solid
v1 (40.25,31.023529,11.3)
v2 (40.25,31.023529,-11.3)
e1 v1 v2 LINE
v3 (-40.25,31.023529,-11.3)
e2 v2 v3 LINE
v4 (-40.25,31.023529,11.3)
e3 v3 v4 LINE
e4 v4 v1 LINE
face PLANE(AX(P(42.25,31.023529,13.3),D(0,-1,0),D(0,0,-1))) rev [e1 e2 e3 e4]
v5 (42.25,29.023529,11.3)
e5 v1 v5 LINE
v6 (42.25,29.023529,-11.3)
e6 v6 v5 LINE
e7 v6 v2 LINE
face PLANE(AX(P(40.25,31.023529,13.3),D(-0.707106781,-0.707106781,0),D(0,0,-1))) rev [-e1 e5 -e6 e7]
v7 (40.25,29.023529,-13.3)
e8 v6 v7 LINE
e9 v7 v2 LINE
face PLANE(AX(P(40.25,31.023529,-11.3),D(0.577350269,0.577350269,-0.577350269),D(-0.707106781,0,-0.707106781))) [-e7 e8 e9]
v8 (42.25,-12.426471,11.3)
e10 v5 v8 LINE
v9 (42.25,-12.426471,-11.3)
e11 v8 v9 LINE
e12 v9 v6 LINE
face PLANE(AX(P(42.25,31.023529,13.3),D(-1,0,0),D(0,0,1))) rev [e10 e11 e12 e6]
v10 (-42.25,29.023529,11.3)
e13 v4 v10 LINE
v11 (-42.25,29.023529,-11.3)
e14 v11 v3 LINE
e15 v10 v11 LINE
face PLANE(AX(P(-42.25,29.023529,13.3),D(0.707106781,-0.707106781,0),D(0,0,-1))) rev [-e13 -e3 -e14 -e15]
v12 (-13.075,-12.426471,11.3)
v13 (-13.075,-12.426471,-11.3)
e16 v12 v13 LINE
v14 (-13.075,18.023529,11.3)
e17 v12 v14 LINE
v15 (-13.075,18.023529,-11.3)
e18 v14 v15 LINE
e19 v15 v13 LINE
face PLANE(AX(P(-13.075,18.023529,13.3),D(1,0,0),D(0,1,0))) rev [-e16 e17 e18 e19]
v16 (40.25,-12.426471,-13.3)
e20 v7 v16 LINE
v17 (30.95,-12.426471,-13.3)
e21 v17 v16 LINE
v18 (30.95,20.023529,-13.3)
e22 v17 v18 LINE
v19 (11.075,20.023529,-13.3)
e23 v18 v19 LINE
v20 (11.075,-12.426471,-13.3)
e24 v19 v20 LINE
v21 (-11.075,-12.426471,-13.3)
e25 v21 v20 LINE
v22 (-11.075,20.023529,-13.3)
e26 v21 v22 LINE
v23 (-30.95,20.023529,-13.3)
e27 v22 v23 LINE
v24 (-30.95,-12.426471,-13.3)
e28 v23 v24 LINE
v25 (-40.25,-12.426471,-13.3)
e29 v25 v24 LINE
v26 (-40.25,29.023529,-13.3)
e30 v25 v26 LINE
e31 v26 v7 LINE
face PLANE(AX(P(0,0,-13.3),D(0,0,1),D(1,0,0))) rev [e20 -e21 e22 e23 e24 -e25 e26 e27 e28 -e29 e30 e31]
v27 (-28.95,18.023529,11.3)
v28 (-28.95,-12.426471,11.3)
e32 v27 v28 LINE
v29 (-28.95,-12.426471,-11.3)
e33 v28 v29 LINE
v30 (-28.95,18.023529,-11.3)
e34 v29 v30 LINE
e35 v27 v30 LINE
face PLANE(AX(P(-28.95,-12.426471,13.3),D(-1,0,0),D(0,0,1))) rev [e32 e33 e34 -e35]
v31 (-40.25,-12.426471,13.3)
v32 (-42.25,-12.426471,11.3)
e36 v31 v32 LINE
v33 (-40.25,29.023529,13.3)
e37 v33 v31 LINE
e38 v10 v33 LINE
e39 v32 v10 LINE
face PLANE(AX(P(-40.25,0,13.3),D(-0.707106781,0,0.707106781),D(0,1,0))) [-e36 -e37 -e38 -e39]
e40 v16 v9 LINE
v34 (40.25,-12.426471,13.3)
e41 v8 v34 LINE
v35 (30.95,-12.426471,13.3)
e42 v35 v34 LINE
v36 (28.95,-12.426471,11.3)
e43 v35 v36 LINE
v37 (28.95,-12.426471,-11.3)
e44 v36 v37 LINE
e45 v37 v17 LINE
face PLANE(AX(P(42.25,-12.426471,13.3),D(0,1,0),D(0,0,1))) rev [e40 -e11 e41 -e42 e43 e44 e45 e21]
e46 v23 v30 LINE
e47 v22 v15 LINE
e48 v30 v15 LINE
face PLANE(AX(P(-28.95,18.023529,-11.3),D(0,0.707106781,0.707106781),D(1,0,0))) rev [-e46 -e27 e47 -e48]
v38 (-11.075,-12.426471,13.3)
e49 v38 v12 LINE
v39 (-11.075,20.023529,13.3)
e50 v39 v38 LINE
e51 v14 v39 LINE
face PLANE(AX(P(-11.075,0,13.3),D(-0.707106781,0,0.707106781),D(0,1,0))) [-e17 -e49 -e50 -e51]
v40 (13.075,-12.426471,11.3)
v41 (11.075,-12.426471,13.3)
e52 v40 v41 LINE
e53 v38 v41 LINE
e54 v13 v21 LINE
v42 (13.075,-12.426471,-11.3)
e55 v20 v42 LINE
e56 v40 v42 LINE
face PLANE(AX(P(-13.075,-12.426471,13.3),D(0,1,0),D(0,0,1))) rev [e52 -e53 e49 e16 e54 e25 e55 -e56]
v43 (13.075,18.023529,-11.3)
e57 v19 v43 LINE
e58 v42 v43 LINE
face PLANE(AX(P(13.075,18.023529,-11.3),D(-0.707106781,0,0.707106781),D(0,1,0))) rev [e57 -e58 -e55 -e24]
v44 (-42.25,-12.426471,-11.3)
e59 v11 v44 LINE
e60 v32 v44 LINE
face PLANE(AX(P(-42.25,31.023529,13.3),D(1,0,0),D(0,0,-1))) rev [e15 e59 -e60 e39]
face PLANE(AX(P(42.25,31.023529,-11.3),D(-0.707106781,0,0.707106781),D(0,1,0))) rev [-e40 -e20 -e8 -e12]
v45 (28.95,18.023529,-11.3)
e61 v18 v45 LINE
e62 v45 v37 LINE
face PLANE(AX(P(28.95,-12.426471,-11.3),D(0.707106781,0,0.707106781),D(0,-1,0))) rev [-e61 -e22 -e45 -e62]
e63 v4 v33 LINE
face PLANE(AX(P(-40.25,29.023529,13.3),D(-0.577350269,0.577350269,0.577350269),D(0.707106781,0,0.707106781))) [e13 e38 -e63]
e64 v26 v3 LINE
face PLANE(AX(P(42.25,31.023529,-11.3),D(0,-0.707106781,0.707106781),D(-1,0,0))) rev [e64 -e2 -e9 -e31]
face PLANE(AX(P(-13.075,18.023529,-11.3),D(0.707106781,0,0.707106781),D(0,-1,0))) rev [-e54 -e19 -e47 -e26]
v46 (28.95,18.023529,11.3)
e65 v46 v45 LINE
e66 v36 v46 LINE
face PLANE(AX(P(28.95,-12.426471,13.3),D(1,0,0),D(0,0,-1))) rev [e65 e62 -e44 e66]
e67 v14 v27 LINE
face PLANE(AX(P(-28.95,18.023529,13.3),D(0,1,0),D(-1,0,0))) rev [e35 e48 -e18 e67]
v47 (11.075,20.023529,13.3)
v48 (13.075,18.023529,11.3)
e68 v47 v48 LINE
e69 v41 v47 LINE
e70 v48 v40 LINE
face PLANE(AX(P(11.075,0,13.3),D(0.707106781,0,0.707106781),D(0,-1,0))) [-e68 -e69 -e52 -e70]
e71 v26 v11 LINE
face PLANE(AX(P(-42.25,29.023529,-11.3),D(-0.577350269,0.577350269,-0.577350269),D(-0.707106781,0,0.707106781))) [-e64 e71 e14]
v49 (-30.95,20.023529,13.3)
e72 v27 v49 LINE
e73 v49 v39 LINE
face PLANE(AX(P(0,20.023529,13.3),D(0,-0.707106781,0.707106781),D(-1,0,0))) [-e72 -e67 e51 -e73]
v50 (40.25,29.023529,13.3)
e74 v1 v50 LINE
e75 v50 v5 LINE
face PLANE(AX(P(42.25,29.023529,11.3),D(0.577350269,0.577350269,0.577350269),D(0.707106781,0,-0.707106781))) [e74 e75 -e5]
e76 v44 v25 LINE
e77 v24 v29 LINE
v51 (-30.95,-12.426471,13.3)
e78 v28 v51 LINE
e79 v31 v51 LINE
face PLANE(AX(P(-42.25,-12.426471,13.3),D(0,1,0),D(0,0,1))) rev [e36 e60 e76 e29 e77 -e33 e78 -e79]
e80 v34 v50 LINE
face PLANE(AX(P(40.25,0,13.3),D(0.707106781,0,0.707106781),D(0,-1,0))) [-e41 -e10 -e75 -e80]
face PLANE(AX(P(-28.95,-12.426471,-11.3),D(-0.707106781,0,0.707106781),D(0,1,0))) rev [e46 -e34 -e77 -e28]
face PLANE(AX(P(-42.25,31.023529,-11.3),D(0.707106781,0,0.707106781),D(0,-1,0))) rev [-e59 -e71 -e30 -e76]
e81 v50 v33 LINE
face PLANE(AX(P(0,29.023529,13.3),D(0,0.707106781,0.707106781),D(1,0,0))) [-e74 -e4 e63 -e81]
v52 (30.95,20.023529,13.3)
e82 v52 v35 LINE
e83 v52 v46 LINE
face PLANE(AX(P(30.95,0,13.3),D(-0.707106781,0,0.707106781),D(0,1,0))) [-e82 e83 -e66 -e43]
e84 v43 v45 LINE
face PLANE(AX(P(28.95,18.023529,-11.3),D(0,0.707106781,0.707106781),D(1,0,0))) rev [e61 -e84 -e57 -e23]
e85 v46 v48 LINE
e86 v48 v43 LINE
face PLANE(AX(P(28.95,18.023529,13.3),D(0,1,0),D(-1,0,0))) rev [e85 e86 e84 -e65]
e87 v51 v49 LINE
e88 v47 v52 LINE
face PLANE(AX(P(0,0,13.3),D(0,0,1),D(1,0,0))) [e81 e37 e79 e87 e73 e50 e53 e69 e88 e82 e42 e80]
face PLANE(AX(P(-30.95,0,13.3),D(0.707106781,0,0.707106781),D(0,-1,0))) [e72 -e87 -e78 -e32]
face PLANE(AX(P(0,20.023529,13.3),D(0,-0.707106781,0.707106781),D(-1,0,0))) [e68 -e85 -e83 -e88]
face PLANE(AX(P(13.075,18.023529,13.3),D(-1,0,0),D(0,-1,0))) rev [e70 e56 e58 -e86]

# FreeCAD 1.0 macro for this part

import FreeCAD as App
import Part
import Sketcher
from FreeCAD import Vector
Q = App.Units.Quantity


def edges_at(feature, points):
    """Names of the edges that pass closest to the given points."""
    edges = feature.Shape.Edges
    near = lambda p: min(range(len(edges)), key=lambda i: edges[i].distToShape(Part.Vertex(*p))[0])
    return sorted({f"Edge{near(p) + 1}" for p in points})

doc = App.newDocument("Part")
body = doc.addObject("PartDesign::Body", "Body")

# Sketch on XY plane
sketch1 = body.newObject("Sketcher::SketchObject", "Sketch")
sketch1.AttachmentSupport = (doc.getObject("XY_Plane"), [""])
sketch1.MapMode = "FlatFace"
sketch1.addGeometry([
    Part.LineSegment(Vector(42, 31, 0), Vector(-42, 31, 0)),  # 0
    Part.LineSegment(Vector(-42, 31, 0), Vector(-42, -12, 0)),  # 1
    Part.LineSegment(Vector(-42, -12, 0), Vector(-29, -12, 0)),  # 2
    Part.LineSegment(Vector(-29, -12, 0), Vector(-29, 18, 0)),  # 3
    Part.LineSegment(Vector(-29, 18, 0), Vector(-13, 18, 0)),  # 4
    Part.LineSegment(Vector(-13, 18, 0), Vector(-13, -12, 0)),  # 5
    Part.LineSegment(Vector(-13, -12, 0), Vector(13, -12, 0)),  # 6
    Part.LineSegment(Vector(13, -12, 0), Vector(13, 18, 0)),  # 7
    Part.LineSegment(Vector(13, 18, 0), Vector(29, 18, 0)),  # 8
    Part.LineSegment(Vector(29, 18, 0), Vector(29, -12, 0)),  # 9
    Part.LineSegment(Vector(29, -12, 0), Vector(42, -12, 0)),  # 10
    Part.LineSegment(Vector(42, -12, 0), Vector(42, 31, 0)),  # 11
], False)
sketch1.addConstraint([
    Sketcher.Constraint("Coincident", 0, 2, 1, 1),
    Sketcher.Constraint("Coincident", 1, 2, 2, 1),
    Sketcher.Constraint("Coincident", 2, 2, 3, 1),
    Sketcher.Constraint("Coincident", 3, 2, 4, 1),
    Sketcher.Constraint("Coincident", 4, 2, 5, 1),
    Sketcher.Constraint("Coincident", 5, 2, 6, 1),
    Sketcher.Constraint("Coincident", 6, 2, 7, 1),
    Sketcher.Constraint("Coincident", 7, 2, 8, 1),
    Sketcher.Constraint("Coincident", 8, 2, 9, 1),
    Sketcher.Constraint("Coincident", 9, 2, 10, 1),
    Sketcher.Constraint("Coincident", 10, 2, 11, 1),
    Sketcher.Constraint("Coincident", 11, 2, 0, 1),
    Sketcher.Constraint("Horizontal", 0),
    Sketcher.Constraint("Vertical", 1),
    Sketcher.Constraint("Horizontal", 2),
    Sketcher.Constraint("Vertical", 3),
    Sketcher.Constraint("Horizontal", 4),
    Sketcher.Constraint("Vertical", 5),
    Sketcher.Constraint("Horizontal", 6),
    Sketcher.Constraint("Vertical", 7),
    Sketcher.Constraint("Horizontal", 8),
    Sketcher.Constraint("Vertical", 9),
    Sketcher.Constraint("Horizontal", 10),
    Sketcher.Constraint("Vertical", 11),
    Sketcher.Constraint("Symmetric", 4, 2, 7, 2, -2),
    Sketcher.Constraint("Symmetric", 2, 2, 9, 2, -2),
    Sketcher.Constraint("Horizontal", 2, 2, 5, 2),
    Sketcher.Constraint("Equal", 2, 10),
    Sketcher.Constraint("DistanceX", 0, 2, 0, 1, Q("84.5 mm")),
    Sketcher.Constraint("DistanceX", 2, 1, 2, 2, Q("13.3 mm")),
    Sketcher.Constraint("DistanceY", 3, 2, 0, 2, Q("13 mm")),
    Sketcher.Constraint("DistanceX", 6, 1, 6, 2, Q("26.15 mm")),
    Sketcher.Constraint("DistanceY", 1, 2, 1, 1, Q("43.45 mm")),
    Sketcher.Constraint("DistanceY", -1, 1, 0, 2, Q("31.023529 mm")),
])
pad1 = body.newObject("PartDesign::Pad", "Pad")
pad1.Profile = sketch1
pad1.Length = 26.6
pad1.Midplane = True
doc.recompute()

chamfer = body.newObject("PartDesign::Chamfer", "Chamfer")
chamfer.Base = (pad1, edges_at(pad1, [
    (13.075, 2.799, -13.3),
    (-13.075, 2.799, -13.3),
    (-21.012, 18.024, -13.3),
    (-28.95, 2.799, -13.3),
    (-42.25, 9.299, -13.3),
    (0, 31.024, -13.3),
    (42.25, 9.299, -13.3),
    (28.95, 2.799, -13.3),
    (21.012, 18.024, -13.3),
    (42.25, 9.299, 13.3),
    (0, 31.024, 13.3),
    (-42.25, 31.024, 0),
    (42.25, 31.024, 0),
    (-42.25, 9.299, 13.3),
    (-28.95, 2.799, 13.3),
    (-21.012, 18.024, 13.3),
    (-13.075, 2.799, 13.3),
    (13.075, 2.799, 13.3),
    (21.012, 18.024, 13.3),
    (28.95, 2.799, 13.3),
]))
chamfer.Size = 2

doc.recompute()
